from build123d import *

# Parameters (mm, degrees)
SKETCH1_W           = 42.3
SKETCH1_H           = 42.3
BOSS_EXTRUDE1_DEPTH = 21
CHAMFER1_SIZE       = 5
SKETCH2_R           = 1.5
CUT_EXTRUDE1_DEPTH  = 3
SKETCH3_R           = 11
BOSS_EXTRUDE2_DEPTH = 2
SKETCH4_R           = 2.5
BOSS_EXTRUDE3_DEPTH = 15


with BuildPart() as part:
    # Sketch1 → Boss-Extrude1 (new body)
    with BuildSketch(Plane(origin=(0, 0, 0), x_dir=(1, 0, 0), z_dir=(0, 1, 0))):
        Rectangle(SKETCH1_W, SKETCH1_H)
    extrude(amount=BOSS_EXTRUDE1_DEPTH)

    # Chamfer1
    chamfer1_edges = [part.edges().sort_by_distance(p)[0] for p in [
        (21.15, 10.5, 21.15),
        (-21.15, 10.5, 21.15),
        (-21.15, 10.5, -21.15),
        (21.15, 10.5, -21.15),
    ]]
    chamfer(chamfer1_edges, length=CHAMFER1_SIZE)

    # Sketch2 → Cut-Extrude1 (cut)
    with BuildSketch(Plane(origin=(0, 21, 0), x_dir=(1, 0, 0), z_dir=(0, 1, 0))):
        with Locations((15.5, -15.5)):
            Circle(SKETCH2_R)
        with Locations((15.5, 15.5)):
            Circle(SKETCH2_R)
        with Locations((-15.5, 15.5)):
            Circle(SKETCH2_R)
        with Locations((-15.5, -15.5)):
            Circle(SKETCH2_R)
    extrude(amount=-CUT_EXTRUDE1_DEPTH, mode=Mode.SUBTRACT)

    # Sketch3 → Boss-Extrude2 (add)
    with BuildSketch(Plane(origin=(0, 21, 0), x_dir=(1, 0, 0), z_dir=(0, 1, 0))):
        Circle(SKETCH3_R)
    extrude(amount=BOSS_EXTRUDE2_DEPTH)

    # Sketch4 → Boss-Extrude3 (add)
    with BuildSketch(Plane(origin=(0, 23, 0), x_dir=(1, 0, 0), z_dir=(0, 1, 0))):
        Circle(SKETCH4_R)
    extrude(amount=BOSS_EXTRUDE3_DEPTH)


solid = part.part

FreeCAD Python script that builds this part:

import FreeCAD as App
import Part
import Sketcher

V = App.Vector
Q = App.Units.Quantity


def edges_at(feature, points):
    """Names of the edges that pass closest to the given points."""
    edges = feature.Shape.Edges
    near = lambda p: min(range(len(edges)), key=lambda i: edges[i].distToShape(Part.Vertex(*p))[0])
    return sorted({f"Edge{near(p) + 1}" for p in points})

doc = App.newDocument("Part")
params = doc.addObject("Spreadsheet::Sheet", "Params")
for row, (alias, value) in enumerate([
    ("sketch1_width", "42.3 mm"),
    ("pad1_length", "21 mm"),
    ("chamfer_size", "5 mm"),
    ("sketch2_diameter", "3 mm"),
    ("pocket1_length", "3 mm"),
    ("sketch3_diameter", "22 mm"),
    ("pad2_length", "2 mm"),
    ("sketch4_diameter", "5 mm"),
    ("pad3_length", "15 mm"),
], start=1):
    params.set(f"A{row}", alias)
    params.set(f"B{row}", "=" + value)
    params.setAlias(f"B{row}", alias)

body = doc.addObject("PartDesign::Body", "Body")

# Sketch on XZ plane
sketch1 = body.newObject("Sketcher::SketchObject", "Sketch")
sketch1.AttachmentSupport = (doc.getObject("XZ_Plane"), [""])
sketch1.MapMode = "FlatFace"
sketch1.addGeometry([
    Part.LineSegment(V(-21, -21, 0), V(-21, 21, 0)),
    Part.LineSegment(V(-21, 21, 0), V(21, 21, 0)),
    Part.LineSegment(V(21, 21, 0), V(21, -21, 0)),
    Part.LineSegment(V(21, -21, 0), V(-21, -21, 0)),
], False)
sketch1.addConstraint([
    Sketcher.Constraint("Coincident", 0, 2, 1, 1),
    Sketcher.Constraint("Coincident", 1, 2, 2, 1),
    Sketcher.Constraint("Coincident", 2, 2, 3, 1),
    Sketcher.Constraint("Coincident", 3, 2, 0, 1),
    Sketcher.Constraint("Vertical", 0),
    Sketcher.Constraint("Horizontal", 1),
    Sketcher.Constraint("Vertical", 2),
    Sketcher.Constraint("Horizontal", 3),
    Sketcher.Constraint("Symmetric", 0, 2, 2, 2, -1, 1),
    Sketcher.Constraint("Equal", 3, 0),
    Sketcher.Constraint("DistanceX", 1, 1, 1, 2, Q("42.3 mm")),
])
sketch1.setExpression("Constraints[10]", "Params.sketch1_width")
pad1 = body.newObject("PartDesign::Pad", "Pad")
pad1.Profile = sketch1
pad1.setExpression("Length", "Params.pad1_length")
pad1.Reversed = True
doc.recompute()

chamfer = body.newObject("PartDesign::Chamfer", "Chamfer")
chamfer.Base = (pad1, edges_at(pad1, [
    (21.15, 10.5, 21.15),
    (-21.15, 10.5, 21.15),
    (-21.15, 10.5, -21.15),
    (21.15, 10.5, -21.15),
]))
chamfer.setExpression("Size", "Params.chamfer_size")

# Sketch on XZ plane
sketch2 = body.newObject("Sketcher::SketchObject", "Sketch001")
sketch2.AttachmentSupport = (doc.getObject("XZ_Plane"), [""])
sketch2.MapMode = "FlatFace"
sketch2.AttachmentOffset = App.Placement(V(0, 0, -21), App.Rotation())
sketch2.addGeometry([
    Part.Circle(V(15.5, 15.5, 0), V(0, 0, 1), 1.5),
    Part.Circle(V(15.5, -15.5, 0), V(0, 0, 1), 1.5),
    Part.Circle(V(-15.5, -15.5, 0), V(0, 0, 1), 1.5),
    Part.Circle(V(-15.5, 15.5, 0), V(0, 0, 1), 1.5),
], False)
sketch2.addConstraint([
    Sketcher.Constraint("Equal", 0, 1),
    Sketcher.Constraint("Equal", 1, 2),
    Sketcher.Constraint("Equal", 2, 3),
    Sketcher.Constraint("Symmetric", 0, 3, 2, 3, -1, 1),
    Sketcher.Constraint("Symmetric", 1, 3, 3, 3, -1, 1),
    Sketcher.Constraint("Symmetric", 1, 3, 2, 3, -2),
    Sketcher.Constraint("Diameter", 0, Q("3 mm")),
    Sketcher.Constraint("DistanceY", 1, 3, 0, 3, Q("31 mm")),
    Sketcher.Constraint("DistanceX", 2, 3, 1, 3, Q("31 mm")),
])
sketch2.setExpression("Constraints[6]", "Params.sketch2_diameter")
pocket1 = body.newObject("PartDesign::Pocket", "Pocket")
pocket1.Profile = sketch2
pocket1.setExpression("Length", "Params.pocket1_length")
pocket1.Reversed = True

# Sketch on XZ plane
sketch3 = body.newObject("Sketcher::SketchObject", "Sketch002")
sketch3.AttachmentSupport = (doc.getObject("XZ_Plane"), [""])
sketch3.MapMode = "FlatFace"
sketch3.AttachmentOffset = App.Placement(V(0, 0, -21), App.Rotation())
sketch3.addGeometry(Part.Circle(V(0, 0, 0), V(0, 0, 1), 11), False)
sketch3.addConstraint([
    Sketcher.Constraint("Coincident", 0, 3, -1, 1),
    Sketcher.Constraint("Diameter", 0, Q("22 mm")),
])
sketch3.setExpression("Constraints[1]", "Params.sketch3_diameter")
pad2 = body.newObject("PartDesign::Pad", "Pad001")
pad2.Profile = sketch3
pad2.setExpression("Length", "Params.pad2_length")
pad2.Reversed = True

# Sketch on XZ plane
sketch4 = body.newObject("Sketcher::SketchObject", "Sketch003")
sketch4.AttachmentSupport = (doc.getObject("XZ_Plane"), [""])
sketch4.MapMode = "FlatFace"
sketch4.AttachmentOffset = App.Placement(V(0, 0, -23), App.Rotation())
sketch4.addGeometry(Part.Circle(V(0, 0, 0), V(0, 0, 1), 2.5), False)
sketch4.addConstraint([
    Sketcher.Constraint("Coincident", 0, 3, -1, 1),
    Sketcher.Constraint("Diameter", 0, Q("5 mm")),
])
sketch4.setExpression("Constraints[1]", "Params.sketch4_diameter")
pad3 = body.newObject("PartDesign::Pad", "Pad002")
pad3.Profile = sketch4
pad3.setExpression("Length", "Params.pad3_length")
pad3.Reversed = True

doc.recompute()
